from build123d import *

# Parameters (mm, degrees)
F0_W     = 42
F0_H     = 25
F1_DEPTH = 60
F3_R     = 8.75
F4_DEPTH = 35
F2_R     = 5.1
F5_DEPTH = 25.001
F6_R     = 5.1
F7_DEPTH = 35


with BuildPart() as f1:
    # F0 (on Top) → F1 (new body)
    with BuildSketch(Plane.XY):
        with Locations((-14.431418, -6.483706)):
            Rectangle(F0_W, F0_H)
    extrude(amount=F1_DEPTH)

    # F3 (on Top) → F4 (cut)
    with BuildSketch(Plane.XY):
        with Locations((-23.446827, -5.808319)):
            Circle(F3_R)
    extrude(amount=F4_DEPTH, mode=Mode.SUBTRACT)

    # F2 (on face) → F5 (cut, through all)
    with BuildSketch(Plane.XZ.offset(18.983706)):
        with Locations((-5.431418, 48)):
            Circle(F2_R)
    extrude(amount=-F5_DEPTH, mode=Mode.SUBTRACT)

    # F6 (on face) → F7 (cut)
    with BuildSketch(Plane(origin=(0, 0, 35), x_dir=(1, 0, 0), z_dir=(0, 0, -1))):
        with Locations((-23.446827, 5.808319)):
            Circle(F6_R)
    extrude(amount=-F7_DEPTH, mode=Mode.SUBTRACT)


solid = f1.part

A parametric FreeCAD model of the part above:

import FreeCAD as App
import Part
import Sketcher
Q = App.Units.Quantity

doc = App.newDocument("Part")
params = doc.addObject("Spreadsheet::Sheet", "Params")
for row, (alias, value) in enumerate([
    ("sketch1_width", "42 mm"),
    ("sketch1_height", "25 mm"),
    ("pad1_length", "60 mm"),
    ("sketch2_diameter", "17.5 mm"),
    ("pocket1_length", "35 mm"),
    ("sketch3_diameter", "10.2 mm"),
    ("sketch4_diameter", "10.2 mm"),
    ("pocket3_length", "35 mm"),
], start=1):
    params.set(f"A{row}", alias)
    params.set(f"B{row}", "=" + value)
    params.setAlias(f"B{row}", alias)

body = doc.addObject("PartDesign::Body", "Body")

# Sketch on XY plane
sketch1 = body.newObject("Sketcher::SketchObject", "Sketch")
sketch1.AttachmentSupport = (doc.getObject("XY_Plane"), [""])
sketch1.MapMode = "FlatFace"
sketch1.addGeometry([
    Part.LineSegment(App.Vector(-35.431418, 6.016294, 0), App.Vector(-35.431418, -18.983706, 0)),
    Part.LineSegment(App.Vector(-35.431418, -18.983706, 0), App.Vector(6.568582, -18.983706, 0)),
    Part.LineSegment(App.Vector(6.568582, -18.983706, 0), App.Vector(6.568582, 6.016294, 0)),
    Part.LineSegment(App.Vector(6.568582, 6.016294, 0), App.Vector(-35.431418, 6.016294, 0)),
], False)
sketch1.addConstraint([
    Sketcher.Constraint("Coincident", 0, 2, 1, 1),
    Sketcher.Constraint("Coincident", 1, 2, 2, 1),
    Sketcher.Constraint("Coincident", 2, 2, 3, 1),
    Sketcher.Constraint("Coincident", 3, 2, 0, 1),
    Sketcher.Constraint("Vertical", 0),
    Sketcher.Constraint("Horizontal", 1),
    Sketcher.Constraint("Vertical", 2),
    Sketcher.Constraint("Horizontal", 3),
    Sketcher.Constraint("DistanceX", 1, 1, 1, 2, Q("42 mm")),
    Sketcher.Constraint("DistanceY", 0, 2, 0, 1, Q("25 mm")),
    Sketcher.Constraint("DistanceX", 0, 2, -1, 1, Q("35.431418 mm")),
    Sketcher.Constraint("DistanceY", 0, 2, -1, 1, Q("18.983706 mm")),
])
sketch1.setExpression("Constraints[8]", "Params.sketch1_width")
sketch1.setExpression("Constraints[9]", "Params.sketch1_height")
pad1 = body.newObject("PartDesign::Pad", "Pad")
pad1.Profile = sketch1
pad1.setExpression("Length", "Params.pad1_length")

# Sketch on XY plane
sketch2 = body.newObject("Sketcher::SketchObject", "Sketch001")
sketch2.AttachmentSupport = (doc.getObject("XY_Plane"), [""])
sketch2.MapMode = "FlatFace"
sketch2.addGeometry(Part.Circle(App.Vector(-23.446827, -5.808319, 0), App.Vector(0, 0, 1), 8.75), False)
sketch2.addConstraint([
    Sketcher.Constraint("Diameter", 0, Q("17.5 mm")),
    Sketcher.Constraint("DistanceY", 0, 3, -1, 1, Q("5.808319 mm")),
    Sketcher.Constraint("DistanceX", 0, 3, -1, 1, Q("23.446827 mm")),
])
sketch2.setExpression("Constraints[0]", "Params.sketch2_diameter")
pocket1 = body.newObject("PartDesign::Pocket", "Pocket")
pocket1.Profile = sketch2
pocket1.setExpression("Length", "Params.pocket1_length")
pocket1.Reversed = True

# Sketch on XZ plane
sketch3 = body.newObject("Sketcher::SketchObject", "Sketch002")
sketch3.AttachmentSupport = (doc.getObject("XZ_Plane"), [""])
sketch3.MapMode = "FlatFace"
sketch3.AttachmentOffset = App.Placement(App.Vector(0, 0, 18.983706), App.Rotation())
sketch3.addGeometry(Part.Circle(App.Vector(-5.431418, 48, 0), App.Vector(0, 0, 1), 5.1), False)
sketch3.addConstraint([
    Sketcher.Constraint("Diameter", 0, Q("10.2 mm")),
    Sketcher.Constraint("DistanceY", -1, 1, 0, 3, Q("48 mm")),
    Sketcher.Constraint("DistanceX", 0, 3, -1, 1, Q("5.431418 mm")),
])
sketch3.setExpression("Constraints[0]", "Params.sketch3_diameter")
pocket2 = body.newObject("PartDesign::Pocket", "Pocket001")
pocket2.Profile = sketch3
pocket2.Type = "ThroughAll"

# Sketch on XY plane
sketch4 = body.newObject("Sketcher::SketchObject", "Sketch003")
sketch4.AttachmentSupport = (doc.getObject("XY_Plane"), [""])
sketch4.MapMode = "FlatFace"
sketch4.AttachmentOffset = App.Placement(App.Vector(0, 0, 35), App.Rotation())
sketch4.addGeometry(Part.Circle(App.Vector(-23.446827, -5.808319, 0), App.Vector(0, 0, 1), 5.1), False)
sketch4.addConstraint([
    Sketcher.Constraint("Diameter", 0, Q("10.2 mm")),
    Sketcher.Constraint("DistanceY", 0, 3, -1, 1, Q("5.808319 mm")),
    Sketcher.Constraint("DistanceX", 0, 3, -1, 1, Q("23.446827 mm")),
])
sketch4.setExpression("Constraints[0]", "Params.sketch4_diameter")
pocket3 = body.newObject("PartDesign::Pocket", "Pocket002")
pocket3.Profile = sketch4
pocket3.setExpression("Length", "Params.pocket3_length")
pocket3.Reversed = True

doc.recompute()
